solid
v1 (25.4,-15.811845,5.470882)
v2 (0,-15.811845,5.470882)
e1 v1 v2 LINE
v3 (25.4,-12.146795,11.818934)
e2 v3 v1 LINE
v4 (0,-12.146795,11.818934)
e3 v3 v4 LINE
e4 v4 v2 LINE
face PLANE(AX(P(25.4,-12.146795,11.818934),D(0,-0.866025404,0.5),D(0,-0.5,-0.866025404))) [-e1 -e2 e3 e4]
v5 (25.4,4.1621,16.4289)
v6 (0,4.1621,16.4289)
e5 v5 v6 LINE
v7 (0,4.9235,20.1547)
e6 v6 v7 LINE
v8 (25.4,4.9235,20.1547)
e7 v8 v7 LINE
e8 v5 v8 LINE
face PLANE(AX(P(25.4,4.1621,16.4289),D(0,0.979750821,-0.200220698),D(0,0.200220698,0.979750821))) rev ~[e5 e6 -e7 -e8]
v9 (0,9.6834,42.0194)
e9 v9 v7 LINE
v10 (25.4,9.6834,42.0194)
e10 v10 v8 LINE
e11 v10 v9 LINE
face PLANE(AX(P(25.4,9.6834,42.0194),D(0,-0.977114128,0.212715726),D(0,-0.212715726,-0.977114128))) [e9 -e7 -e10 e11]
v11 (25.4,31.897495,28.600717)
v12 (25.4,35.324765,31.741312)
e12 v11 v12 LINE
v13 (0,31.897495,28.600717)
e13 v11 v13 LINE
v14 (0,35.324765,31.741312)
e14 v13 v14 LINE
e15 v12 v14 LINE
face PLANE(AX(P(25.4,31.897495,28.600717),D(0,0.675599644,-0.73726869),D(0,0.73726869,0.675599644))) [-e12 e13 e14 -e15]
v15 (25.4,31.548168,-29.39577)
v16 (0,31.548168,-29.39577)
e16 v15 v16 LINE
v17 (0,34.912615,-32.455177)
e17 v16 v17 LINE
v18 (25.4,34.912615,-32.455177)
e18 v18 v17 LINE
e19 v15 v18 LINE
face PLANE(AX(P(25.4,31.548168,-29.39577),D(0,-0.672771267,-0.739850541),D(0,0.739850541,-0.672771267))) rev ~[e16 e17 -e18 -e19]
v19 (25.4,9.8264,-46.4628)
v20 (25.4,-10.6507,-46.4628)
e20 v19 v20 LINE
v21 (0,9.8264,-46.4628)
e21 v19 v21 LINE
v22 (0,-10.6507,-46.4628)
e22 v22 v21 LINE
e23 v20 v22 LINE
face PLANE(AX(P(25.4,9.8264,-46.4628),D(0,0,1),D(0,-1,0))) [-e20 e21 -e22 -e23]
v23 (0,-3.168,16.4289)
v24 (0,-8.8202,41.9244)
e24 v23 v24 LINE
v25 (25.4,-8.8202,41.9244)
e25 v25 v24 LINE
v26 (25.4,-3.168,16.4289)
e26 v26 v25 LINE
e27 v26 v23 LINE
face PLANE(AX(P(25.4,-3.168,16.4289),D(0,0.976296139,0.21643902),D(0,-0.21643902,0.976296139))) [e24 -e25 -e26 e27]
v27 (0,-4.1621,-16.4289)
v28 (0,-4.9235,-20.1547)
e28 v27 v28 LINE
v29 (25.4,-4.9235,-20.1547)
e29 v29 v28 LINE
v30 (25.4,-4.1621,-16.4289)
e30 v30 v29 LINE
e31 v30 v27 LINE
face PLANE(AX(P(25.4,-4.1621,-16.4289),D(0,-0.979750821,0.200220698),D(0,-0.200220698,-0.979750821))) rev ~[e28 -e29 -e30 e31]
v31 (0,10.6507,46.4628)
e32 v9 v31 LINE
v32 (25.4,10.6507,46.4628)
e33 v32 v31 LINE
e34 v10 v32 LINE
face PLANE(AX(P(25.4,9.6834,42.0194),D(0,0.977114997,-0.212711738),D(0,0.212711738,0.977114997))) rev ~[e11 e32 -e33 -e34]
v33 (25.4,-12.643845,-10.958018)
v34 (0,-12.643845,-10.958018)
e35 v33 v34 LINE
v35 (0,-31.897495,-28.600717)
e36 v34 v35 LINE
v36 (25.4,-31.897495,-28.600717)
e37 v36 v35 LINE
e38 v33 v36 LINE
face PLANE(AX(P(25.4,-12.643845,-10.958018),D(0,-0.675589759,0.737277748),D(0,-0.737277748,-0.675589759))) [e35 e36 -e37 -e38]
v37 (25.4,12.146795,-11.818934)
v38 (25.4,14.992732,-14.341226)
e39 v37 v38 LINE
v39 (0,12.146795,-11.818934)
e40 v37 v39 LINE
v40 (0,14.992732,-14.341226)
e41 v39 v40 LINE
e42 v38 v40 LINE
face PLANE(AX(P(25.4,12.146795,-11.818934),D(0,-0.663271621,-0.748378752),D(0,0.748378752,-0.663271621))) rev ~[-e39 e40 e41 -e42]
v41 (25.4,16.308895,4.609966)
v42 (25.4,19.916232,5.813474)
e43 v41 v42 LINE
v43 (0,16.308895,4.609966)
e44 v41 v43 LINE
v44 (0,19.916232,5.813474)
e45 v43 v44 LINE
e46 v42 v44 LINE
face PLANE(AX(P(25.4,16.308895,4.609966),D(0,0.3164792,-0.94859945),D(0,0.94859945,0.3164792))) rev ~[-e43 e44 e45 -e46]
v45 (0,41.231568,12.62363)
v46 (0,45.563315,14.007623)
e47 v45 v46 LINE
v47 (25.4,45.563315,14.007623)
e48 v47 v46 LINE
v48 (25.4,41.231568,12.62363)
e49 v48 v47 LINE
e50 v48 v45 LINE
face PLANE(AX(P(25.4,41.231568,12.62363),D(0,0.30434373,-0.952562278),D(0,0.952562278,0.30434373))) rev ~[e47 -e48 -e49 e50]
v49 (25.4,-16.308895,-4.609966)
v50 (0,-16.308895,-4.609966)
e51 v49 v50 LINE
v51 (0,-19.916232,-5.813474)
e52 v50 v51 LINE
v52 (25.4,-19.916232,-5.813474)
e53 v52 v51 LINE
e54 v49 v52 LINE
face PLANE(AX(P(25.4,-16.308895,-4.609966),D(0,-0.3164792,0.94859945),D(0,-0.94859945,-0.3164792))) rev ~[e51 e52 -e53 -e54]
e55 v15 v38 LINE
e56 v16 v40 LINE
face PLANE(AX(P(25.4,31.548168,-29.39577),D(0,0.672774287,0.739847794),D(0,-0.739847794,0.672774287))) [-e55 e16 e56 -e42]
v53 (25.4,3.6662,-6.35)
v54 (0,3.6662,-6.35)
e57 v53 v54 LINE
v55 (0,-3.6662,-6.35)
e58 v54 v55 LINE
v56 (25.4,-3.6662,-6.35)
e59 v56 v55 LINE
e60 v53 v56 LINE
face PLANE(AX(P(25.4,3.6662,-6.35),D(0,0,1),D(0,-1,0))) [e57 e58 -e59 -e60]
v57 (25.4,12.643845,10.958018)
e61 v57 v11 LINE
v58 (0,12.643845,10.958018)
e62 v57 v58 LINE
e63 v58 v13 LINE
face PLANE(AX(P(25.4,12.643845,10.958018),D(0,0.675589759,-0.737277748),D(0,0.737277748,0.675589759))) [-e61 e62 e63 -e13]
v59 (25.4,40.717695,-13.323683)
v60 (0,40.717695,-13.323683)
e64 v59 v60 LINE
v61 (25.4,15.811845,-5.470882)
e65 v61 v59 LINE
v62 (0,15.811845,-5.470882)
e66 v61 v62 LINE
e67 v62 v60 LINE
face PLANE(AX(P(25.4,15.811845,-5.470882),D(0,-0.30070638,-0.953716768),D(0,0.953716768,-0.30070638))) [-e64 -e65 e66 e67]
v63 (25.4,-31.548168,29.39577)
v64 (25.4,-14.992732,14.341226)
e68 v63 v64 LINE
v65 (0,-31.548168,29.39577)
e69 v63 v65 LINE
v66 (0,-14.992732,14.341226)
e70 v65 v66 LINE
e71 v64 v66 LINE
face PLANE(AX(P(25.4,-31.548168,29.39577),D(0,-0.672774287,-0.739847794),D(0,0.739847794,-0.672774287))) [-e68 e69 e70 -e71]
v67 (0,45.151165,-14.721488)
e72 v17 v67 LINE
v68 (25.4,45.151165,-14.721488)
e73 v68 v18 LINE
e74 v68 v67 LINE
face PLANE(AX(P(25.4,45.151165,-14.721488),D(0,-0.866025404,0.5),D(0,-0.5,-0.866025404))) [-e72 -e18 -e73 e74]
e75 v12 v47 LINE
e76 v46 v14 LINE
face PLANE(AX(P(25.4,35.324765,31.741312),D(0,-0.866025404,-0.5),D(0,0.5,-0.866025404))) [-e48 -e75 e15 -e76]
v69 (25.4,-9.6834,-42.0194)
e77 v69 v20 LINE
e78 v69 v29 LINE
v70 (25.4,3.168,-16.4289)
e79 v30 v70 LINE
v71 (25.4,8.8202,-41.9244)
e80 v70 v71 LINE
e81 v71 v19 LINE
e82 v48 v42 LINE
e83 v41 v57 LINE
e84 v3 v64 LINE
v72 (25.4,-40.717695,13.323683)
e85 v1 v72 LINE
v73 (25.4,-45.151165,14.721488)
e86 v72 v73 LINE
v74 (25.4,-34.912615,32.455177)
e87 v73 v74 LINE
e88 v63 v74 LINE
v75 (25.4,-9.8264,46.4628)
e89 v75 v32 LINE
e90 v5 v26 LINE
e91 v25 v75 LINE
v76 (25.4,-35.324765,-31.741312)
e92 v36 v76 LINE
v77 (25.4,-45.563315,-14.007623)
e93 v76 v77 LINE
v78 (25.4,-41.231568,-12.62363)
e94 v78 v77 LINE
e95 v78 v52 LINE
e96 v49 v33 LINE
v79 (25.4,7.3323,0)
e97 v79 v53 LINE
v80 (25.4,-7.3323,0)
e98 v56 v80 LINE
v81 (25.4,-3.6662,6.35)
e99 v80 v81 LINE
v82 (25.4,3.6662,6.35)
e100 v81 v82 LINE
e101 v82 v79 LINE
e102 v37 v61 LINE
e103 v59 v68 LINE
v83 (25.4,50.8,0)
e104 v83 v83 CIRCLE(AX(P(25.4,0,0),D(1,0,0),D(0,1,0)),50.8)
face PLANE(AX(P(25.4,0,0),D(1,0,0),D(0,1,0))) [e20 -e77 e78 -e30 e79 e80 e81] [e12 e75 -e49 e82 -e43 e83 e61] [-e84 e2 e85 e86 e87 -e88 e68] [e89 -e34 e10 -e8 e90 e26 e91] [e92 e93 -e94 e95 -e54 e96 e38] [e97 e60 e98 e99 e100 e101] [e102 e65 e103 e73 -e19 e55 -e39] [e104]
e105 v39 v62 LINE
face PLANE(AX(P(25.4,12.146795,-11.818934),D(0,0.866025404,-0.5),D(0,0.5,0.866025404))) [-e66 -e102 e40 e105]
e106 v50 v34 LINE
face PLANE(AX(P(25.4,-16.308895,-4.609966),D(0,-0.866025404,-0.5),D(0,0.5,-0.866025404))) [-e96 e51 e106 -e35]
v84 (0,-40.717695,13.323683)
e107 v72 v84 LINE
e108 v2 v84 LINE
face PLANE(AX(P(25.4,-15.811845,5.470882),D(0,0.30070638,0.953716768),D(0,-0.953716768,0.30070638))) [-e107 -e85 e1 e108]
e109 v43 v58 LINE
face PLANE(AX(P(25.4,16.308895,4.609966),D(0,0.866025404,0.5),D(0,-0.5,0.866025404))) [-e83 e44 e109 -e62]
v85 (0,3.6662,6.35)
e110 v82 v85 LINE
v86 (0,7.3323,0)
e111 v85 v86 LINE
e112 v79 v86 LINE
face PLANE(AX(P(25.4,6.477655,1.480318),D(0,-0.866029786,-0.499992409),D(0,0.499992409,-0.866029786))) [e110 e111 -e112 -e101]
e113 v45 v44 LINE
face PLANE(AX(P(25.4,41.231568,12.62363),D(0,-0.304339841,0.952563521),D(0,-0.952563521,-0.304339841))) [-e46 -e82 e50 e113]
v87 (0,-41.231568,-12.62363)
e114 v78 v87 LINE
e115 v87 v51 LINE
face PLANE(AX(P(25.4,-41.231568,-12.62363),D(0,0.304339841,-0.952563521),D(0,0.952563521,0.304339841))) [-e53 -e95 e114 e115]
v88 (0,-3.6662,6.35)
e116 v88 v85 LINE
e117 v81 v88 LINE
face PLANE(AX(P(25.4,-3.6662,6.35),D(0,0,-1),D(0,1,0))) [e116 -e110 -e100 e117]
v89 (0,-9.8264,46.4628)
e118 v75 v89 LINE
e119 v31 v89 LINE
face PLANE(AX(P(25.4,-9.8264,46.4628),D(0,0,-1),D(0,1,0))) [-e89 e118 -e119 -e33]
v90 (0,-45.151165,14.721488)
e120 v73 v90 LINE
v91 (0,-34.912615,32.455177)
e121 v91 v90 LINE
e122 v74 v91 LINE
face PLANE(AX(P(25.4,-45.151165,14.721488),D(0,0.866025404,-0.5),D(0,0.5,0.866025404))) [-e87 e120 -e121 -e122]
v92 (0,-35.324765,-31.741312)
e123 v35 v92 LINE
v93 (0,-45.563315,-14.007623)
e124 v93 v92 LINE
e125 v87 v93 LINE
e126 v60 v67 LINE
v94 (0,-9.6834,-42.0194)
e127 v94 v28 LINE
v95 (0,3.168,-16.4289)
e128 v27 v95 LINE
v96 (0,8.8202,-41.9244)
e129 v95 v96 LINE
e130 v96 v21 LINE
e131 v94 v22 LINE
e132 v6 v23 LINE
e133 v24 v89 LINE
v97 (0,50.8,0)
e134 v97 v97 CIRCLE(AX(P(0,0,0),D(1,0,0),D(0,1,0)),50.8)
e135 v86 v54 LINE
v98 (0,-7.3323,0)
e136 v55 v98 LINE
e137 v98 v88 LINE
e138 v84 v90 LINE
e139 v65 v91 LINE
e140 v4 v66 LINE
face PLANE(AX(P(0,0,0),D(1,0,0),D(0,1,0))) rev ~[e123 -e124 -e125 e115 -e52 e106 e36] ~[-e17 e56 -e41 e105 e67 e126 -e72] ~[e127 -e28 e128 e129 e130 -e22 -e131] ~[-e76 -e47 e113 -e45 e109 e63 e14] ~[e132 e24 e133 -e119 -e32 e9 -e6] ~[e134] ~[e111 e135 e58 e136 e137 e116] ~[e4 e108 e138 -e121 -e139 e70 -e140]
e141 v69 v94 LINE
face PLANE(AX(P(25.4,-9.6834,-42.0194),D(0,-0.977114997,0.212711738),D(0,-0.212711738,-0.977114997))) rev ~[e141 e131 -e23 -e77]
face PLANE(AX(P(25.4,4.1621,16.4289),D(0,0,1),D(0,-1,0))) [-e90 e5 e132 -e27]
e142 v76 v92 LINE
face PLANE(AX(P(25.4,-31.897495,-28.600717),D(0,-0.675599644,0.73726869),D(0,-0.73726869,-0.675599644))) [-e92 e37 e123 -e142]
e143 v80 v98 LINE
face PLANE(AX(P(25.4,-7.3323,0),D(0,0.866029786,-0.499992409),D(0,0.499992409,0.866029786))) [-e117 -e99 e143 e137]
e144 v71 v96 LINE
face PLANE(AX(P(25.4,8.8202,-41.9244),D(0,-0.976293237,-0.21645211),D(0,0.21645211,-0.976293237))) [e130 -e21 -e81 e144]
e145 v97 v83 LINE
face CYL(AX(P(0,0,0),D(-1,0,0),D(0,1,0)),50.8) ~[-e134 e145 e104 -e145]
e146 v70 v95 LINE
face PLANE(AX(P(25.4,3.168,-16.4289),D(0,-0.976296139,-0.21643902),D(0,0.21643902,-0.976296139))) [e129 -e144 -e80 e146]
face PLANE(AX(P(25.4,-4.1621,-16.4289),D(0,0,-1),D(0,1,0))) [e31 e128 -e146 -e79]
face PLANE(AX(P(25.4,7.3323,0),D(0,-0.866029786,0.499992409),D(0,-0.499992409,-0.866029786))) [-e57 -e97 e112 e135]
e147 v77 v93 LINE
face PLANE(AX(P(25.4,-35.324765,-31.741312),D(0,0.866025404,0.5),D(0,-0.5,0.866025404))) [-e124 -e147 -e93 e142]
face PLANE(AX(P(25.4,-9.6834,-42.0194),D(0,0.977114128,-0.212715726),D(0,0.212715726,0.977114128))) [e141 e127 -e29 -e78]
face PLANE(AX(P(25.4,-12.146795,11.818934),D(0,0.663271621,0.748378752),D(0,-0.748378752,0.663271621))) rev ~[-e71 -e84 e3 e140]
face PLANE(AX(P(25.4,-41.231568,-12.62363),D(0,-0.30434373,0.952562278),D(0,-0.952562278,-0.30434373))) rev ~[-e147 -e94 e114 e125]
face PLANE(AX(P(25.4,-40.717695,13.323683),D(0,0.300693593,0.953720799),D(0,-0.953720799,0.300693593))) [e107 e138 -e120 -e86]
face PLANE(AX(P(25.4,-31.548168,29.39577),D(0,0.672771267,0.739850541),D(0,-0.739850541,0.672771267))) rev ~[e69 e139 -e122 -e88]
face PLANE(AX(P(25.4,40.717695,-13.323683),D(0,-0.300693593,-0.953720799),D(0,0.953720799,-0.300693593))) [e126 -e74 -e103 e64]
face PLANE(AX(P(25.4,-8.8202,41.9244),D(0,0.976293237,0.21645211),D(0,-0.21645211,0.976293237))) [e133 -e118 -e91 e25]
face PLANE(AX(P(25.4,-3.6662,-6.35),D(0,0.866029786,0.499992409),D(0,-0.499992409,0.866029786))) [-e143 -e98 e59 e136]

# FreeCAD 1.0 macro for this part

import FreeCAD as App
import Part
import Sketcher
Q = App.Units.Quantity


def add_polygon(sketch, points):
    """Adds a closed chain of lines whose ends are joined by coincident constraints."""
    first, n = sketch.GeometryCount, len(points)
    for a, b in zip(points, points[1:] + points[:1]):
        sketch.addGeometry(Part.LineSegment(App.Vector(*a, 0), App.Vector(*b, 0)), False)
    for i in range(n):
        sketch.addConstraint(Sketcher.Constraint("Coincident", first + i, 2, first + (i + 1) % n, 1))

doc = App.newDocument("Part")
body = doc.addObject("PartDesign::Body", "Body")

# Sketch on YZ plane
sketch1 = body.newObject("Sketcher::SketchObject", "Sketch")
sketch1.AttachmentSupport = (doc.getObject("YZ_Plane"), [""])
sketch1.MapMode = "FlatFace"
sketch1.addGeometry(Part.Circle(App.Vector(0, 0, 0), App.Vector(0, 0, 1), 51), False)
sketch1.addConstraint(Sketcher.Constraint("Coincident", 0, 3, -1, 1))
sketch1.addConstraint(Sketcher.Constraint("Diameter", 0, Q("4 in")))
pad1 = body.newObject("PartDesign::Pad", "Pad")
pad1.Profile = sketch1
pad1.Length = Q("1 in")

# Sketch on YZ plane
sketch2 = body.newObject("Sketcher::SketchObject", "Sketch001")
sketch2.AttachmentSupport = (doc.getObject("YZ_Plane"), [""])
sketch2.MapMode = "FlatFace"
sketch2.AttachmentOffset = App.Placement(App.Vector(0, 0, 1 * 25.4), App.Rotation())
add_polygon(sketch2, [(7, 0), (4, 6), (-4, 6), (-7, 0), (-4, -6), (4, -6)])  # lines 0-5
sketch2.addConstraint(Sketcher.Constraint("Horizontal", 1))
sketch2.addConstraint(Sketcher.Constraint("Horizontal", 4))
sketch2.addConstraint(Sketcher.Constraint("Symmetric", 0, 2, 3, 2, -1, 1))
sketch2.addConstraint(Sketcher.Constraint("Symmetric", 2, 2, 5, 2, -1, 1))
sketch2.addConstraint(Sketcher.Constraint("PointOnObject", 2, 2, -1))
sketch2.addConstraint(Sketcher.Constraint("Parallel", 2, 5))
sketch2.addConstraint(Sketcher.Constraint("Vertical", 1, 2, 3, 2))
sketch2.addConstraint(Sketcher.Constraint("DistanceY", -1, 1, 0, 2, Q("0.25 in")))
sketch2.addConstraint(Sketcher.Constraint("Angle", 0, Q("119.9995 deg")))
sketch2.addConstraint(Sketcher.Constraint("DistanceX", 2, 2, 0, 2, Q("0.433 in")))
pocket1 = body.newObject("PartDesign::Pocket", "Pocket")
pocket1.Profile = sketch2
pocket1.Type = "ThroughAll"

# Sketch on YZ plane
sketch3 = body.newObject("Sketcher::SketchObject", "Sketch002")
sketch3.AttachmentSupport = (doc.getObject("YZ_Plane"), [""])
sketch3.MapMode = "FlatFace"
sketch3.AttachmentOffset = App.Placement(App.Vector(0, 0, 1 * 25.4), App.Rotation())
add_polygon(sketch3, [(10.6507, 46.4628), (-9.8264, 46.4628), (-8.8202, 41.9244), (-3.168, 16.4289), (4.1621, 16.4289), (4.9235, 20.1547), (9.6834, 42.0194)])  # lines 0-6
sketch3.addConstraint(Sketcher.Constraint("Horizontal", 0))
sketch3.addConstraint(Sketcher.Constraint("Horizontal", 3))
sketch3.addConstraint(Sketcher.Constraint("DistanceX", 0, 2, 0, 1, 20.477))
sketch3.addConstraint(Sketcher.Constraint("DistanceX", 3, 1, 3, 2, 7.33))
sketch3.addConstraint(Sketcher.Constraint("DistanceY", -1, 1, 2, 2, Q("0.6468 in")))
sketch3.addConstraint(Sketcher.Constraint("DistanceY", -1, 1, 4, 2, Q("0.7935 in")))
sketch3.addConstraint(Sketcher.Constraint("DistanceY", -1, 1, 5, 2, Q("1.6543 in")))
sketch3.addConstraint(Sketcher.Constraint("DistanceX", 1, 2, 4, 2, Q("0.5411 in")))
sketch3.addConstraint(Sketcher.Constraint("DistanceX", 0, 2, 4, 2, Q("0.5807 in")))
sketch3.addConstraint(Sketcher.Constraint("DistanceX", 1, 2, 5, 2, Q("0.7285 in")))
sketch3.addConstraint(Sketcher.Constraint("Distance", 1, 4.6486))
sketch3.addConstraint(Sketcher.Constraint("Distance", 2, 26.1145))
sketch3.addConstraint(Sketcher.Constraint("Distance", 4, 3.8028))
sketch3.addConstraint(Sketcher.Constraint("DistanceX", 0, 2, -1, 1, 9.8264))
pocket2 = body.newObject("PartDesign::Pocket", "Pocket001")
pocket2.Profile = sketch3
pocket2.Type = "ThroughAll"
doc.recompute()

polarpattern = body.newObject("PartDesign::PolarPattern", "PolarPattern")
polarpattern.Originals = [pocket2]
polarpattern.Axis = (doc.getObject("X_Axis"), [""])
polarpattern.Angle = 360
polarpattern.Occurrences = 6
body.Tip = polarpattern

doc.recompute()
